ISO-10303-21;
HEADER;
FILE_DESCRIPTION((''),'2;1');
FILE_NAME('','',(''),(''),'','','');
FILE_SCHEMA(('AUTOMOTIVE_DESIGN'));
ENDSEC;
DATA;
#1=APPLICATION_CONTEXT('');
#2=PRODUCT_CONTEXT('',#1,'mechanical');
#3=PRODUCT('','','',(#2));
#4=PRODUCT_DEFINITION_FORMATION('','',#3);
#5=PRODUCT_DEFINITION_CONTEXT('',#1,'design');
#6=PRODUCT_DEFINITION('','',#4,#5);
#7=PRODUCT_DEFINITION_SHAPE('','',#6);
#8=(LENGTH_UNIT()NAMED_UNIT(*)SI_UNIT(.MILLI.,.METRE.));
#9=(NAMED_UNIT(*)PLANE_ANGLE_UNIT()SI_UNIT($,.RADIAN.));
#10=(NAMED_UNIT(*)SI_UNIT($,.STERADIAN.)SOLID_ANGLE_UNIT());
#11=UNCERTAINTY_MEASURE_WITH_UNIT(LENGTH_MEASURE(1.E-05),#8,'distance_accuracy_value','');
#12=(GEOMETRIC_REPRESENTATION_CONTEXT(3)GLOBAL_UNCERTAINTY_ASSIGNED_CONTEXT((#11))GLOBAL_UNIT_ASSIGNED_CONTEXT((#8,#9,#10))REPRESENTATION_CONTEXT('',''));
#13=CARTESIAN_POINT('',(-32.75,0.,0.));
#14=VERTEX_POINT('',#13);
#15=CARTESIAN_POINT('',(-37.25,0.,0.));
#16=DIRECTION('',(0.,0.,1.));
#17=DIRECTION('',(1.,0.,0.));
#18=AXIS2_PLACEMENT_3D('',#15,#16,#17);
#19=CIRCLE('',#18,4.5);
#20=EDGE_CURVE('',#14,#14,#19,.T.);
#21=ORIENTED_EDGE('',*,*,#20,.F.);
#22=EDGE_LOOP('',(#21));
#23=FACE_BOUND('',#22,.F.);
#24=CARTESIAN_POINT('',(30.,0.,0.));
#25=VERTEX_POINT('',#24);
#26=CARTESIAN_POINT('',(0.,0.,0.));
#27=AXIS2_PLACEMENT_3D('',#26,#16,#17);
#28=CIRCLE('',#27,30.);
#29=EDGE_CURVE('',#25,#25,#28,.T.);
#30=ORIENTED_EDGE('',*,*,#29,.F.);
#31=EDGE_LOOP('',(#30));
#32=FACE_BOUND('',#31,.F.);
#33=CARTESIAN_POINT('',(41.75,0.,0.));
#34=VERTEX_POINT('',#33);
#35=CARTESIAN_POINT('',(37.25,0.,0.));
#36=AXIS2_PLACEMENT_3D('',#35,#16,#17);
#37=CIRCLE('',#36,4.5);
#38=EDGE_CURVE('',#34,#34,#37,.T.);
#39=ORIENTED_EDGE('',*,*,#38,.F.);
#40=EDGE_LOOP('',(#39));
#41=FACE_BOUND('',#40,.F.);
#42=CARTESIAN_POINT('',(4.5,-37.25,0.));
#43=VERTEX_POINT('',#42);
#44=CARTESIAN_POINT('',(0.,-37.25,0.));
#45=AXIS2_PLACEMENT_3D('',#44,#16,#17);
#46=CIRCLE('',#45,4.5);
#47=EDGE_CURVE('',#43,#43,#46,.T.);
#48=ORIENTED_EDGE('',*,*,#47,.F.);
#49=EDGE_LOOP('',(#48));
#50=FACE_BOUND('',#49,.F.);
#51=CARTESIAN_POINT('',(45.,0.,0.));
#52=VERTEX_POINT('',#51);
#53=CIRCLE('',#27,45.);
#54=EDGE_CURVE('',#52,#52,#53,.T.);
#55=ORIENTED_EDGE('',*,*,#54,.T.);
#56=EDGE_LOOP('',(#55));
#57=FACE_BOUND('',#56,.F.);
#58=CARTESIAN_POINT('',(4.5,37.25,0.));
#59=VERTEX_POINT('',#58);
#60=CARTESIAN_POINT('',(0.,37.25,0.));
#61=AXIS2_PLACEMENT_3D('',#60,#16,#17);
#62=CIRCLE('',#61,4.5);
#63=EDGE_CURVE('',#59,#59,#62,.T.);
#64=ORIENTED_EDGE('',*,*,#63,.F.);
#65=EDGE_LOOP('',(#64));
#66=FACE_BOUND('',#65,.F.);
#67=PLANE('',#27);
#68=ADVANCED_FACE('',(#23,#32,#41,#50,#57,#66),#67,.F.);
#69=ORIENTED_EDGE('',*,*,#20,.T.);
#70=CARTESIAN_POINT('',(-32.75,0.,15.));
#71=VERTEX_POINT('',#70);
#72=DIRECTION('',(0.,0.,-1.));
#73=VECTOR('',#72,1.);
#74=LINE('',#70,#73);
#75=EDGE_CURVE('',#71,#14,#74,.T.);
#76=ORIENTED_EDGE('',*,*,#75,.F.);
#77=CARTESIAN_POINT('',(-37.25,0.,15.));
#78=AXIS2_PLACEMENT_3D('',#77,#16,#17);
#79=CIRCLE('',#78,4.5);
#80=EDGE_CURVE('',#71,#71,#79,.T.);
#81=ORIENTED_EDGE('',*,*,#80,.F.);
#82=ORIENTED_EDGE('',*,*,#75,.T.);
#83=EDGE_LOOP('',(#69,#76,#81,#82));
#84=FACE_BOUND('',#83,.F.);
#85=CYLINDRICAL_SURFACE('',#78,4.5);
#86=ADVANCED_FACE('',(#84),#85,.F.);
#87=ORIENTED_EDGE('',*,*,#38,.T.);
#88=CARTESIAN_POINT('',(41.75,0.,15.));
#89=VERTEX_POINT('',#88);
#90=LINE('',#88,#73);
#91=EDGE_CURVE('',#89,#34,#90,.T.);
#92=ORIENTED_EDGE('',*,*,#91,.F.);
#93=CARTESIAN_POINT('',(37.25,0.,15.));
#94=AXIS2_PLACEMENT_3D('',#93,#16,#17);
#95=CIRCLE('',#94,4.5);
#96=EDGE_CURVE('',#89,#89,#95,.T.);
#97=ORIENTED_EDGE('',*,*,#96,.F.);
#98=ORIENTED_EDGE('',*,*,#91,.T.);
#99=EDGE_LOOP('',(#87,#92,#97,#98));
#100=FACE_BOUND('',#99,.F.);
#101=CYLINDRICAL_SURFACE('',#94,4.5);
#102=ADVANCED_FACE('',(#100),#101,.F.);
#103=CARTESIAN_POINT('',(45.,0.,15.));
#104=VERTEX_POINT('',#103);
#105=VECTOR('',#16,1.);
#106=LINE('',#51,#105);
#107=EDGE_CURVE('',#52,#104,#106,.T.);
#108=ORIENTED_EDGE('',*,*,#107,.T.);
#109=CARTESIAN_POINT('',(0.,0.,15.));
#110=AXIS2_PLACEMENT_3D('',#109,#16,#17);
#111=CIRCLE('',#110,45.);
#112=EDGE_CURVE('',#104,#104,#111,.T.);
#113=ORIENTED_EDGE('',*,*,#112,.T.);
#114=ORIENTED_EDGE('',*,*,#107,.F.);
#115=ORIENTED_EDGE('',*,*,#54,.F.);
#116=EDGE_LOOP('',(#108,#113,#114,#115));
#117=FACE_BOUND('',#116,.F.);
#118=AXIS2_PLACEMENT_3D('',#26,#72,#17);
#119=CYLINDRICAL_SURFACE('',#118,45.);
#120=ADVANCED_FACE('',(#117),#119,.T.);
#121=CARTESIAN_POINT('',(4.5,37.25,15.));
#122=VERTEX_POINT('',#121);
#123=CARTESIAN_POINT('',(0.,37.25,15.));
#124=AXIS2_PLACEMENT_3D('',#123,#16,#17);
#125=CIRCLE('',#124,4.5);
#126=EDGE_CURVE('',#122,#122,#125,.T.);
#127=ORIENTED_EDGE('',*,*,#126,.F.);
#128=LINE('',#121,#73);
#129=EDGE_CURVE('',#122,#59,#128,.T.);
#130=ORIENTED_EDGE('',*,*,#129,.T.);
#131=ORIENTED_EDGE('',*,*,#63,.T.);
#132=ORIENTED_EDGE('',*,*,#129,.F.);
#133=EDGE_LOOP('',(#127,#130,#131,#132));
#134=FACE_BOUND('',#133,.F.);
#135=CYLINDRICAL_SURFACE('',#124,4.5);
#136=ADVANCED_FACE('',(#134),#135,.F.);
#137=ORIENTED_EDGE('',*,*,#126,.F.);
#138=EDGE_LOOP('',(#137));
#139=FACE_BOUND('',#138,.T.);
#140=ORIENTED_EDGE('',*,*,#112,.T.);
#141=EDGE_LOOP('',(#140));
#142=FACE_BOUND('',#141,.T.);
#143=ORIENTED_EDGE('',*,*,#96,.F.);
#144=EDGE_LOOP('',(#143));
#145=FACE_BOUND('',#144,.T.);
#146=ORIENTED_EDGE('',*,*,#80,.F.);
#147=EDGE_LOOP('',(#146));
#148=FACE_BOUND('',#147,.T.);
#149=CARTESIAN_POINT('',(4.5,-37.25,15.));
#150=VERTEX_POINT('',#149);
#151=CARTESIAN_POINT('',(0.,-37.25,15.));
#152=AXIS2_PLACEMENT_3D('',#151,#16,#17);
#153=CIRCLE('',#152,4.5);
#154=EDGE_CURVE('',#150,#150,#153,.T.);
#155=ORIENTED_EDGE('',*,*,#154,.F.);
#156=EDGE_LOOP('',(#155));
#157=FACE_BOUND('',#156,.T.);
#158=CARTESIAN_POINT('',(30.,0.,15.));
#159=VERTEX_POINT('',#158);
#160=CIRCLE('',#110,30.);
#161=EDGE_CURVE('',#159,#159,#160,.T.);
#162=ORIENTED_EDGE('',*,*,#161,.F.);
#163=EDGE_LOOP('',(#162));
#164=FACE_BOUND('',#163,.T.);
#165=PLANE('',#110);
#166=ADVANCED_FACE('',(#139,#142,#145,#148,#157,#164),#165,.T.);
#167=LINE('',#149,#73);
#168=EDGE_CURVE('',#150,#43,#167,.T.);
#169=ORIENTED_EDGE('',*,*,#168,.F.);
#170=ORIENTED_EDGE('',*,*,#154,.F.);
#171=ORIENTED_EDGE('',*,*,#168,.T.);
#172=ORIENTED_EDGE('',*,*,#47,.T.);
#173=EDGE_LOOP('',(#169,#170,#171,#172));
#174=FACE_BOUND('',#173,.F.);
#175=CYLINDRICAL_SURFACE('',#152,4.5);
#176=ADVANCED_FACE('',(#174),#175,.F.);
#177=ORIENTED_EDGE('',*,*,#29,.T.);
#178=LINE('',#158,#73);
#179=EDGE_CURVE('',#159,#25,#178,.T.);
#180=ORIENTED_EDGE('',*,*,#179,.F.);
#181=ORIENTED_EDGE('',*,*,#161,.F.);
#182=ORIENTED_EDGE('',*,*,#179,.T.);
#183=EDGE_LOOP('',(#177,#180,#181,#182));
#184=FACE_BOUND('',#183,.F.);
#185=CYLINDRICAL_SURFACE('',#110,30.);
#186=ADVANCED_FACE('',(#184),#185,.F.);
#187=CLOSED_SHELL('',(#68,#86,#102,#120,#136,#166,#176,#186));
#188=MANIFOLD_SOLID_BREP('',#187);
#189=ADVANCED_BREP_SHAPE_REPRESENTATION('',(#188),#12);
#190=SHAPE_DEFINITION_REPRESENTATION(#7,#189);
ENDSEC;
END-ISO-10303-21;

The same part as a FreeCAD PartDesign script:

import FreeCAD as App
import Part
import Sketcher

doc = App.newDocument("Part")
body = doc.addObject("PartDesign::Body", "Body")

# Sketch on XY plane
sketch1 = doc.addObject("Sketcher::SketchObject", "Sketch")
body.addObject(sketch1)
sketch1.AttachmentSupport = (doc.XY_Plane, [""])
sketch1.MapMode = "FlatFace"
sketch1.addGeometry(Part.Circle(App.Vector(0, 0, 0), App.Vector(0, 0, 1), 45), False)
sketch1.addConstraint([
    Sketcher.Constraint("Coincident", 0, 3, -1, 1),
    Sketcher.Constraint("Diameter", 0, 90.0),
])
pad1 = doc.addObject("PartDesign::Pad", "Pad")
body.addObject(pad1)
pad1.Profile = sketch1
pad1.Length = 15

# Sketch on XY plane
sketch2 = doc.addObject("Sketcher::SketchObject", "Sketch001")
body.addObject(sketch2)
sketch2.AttachmentSupport = (doc.XY_Plane, [""])
sketch2.MapMode = "FlatFace"
sketch2.AttachmentOffset = App.Placement(App.Vector(0, 0, 15), App.Rotation())
sketch2.addGeometry(Part.Circle(App.Vector(0, 0, 0), App.Vector(0, 0, 1), 30), False)
sketch2.addConstraint([
    Sketcher.Constraint("Coincident", 0, 3, -1, 1),
    Sketcher.Constraint("Diameter", 0, 60.0),
])
pocket1 = doc.addObject("PartDesign::Pocket", "Pocket")
body.addObject(pocket1)
pocket1.Profile = sketch2
pocket1.Type = "ThroughAll"

# Sketch on XY plane
sketch3 = doc.addObject("Sketcher::SketchObject", "Sketch002")
body.addObject(sketch3)
sketch3.AttachmentSupport = (doc.XY_Plane, [""])
sketch3.MapMode = "FlatFace"
sketch3.AttachmentOffset = App.Placement(App.Vector(0, 0, 15), App.Rotation())
sketch3.addGeometry([
    Part.Circle(App.Vector(0, 37.2, 0), App.Vector(0, 0, 1), 4.5),
    Part.Circle(App.Vector(-37.2, 0, 0), App.Vector(0, 0, 1), 4.5),
    Part.Circle(App.Vector(37.2, 0, 0), App.Vector(0, 0, 1), 4.5),
    Part.Circle(App.Vector(0, -37.2, 0), App.Vector(0, 0, 1), 4.5),
], False)
sketch3.addConstraint([
    Sketcher.Constraint("Equal", 0, 1),
    Sketcher.Constraint("Equal", 1, 2),
    Sketcher.Constraint("Equal", 2, 3),
    Sketcher.Constraint("Symmetric", 1, 3, 2, 3, -1, 1),
    Sketcher.Constraint("Symmetric", 0, 3, 3, 3, -1, 1),
    Sketcher.Constraint("PointOnObject", 0, 3, -2),
    Sketcher.Constraint("PointOnObject", 1, 3, -1),
    Sketcher.Constraint("Diameter", 0, 9.0),
    Sketcher.Constraint("DistanceX", 1, 3, 2, 3, 74.5),
    Sketcher.Constraint("DistanceY", 3, 3, 0, 3, 74.5),
])
pocket2 = doc.addObject("PartDesign::Pocket", "Pocket001")
body.addObject(pocket2)
pocket2.Profile = sketch3
pocket2.Type = "ThroughAll"

doc.recompute()
